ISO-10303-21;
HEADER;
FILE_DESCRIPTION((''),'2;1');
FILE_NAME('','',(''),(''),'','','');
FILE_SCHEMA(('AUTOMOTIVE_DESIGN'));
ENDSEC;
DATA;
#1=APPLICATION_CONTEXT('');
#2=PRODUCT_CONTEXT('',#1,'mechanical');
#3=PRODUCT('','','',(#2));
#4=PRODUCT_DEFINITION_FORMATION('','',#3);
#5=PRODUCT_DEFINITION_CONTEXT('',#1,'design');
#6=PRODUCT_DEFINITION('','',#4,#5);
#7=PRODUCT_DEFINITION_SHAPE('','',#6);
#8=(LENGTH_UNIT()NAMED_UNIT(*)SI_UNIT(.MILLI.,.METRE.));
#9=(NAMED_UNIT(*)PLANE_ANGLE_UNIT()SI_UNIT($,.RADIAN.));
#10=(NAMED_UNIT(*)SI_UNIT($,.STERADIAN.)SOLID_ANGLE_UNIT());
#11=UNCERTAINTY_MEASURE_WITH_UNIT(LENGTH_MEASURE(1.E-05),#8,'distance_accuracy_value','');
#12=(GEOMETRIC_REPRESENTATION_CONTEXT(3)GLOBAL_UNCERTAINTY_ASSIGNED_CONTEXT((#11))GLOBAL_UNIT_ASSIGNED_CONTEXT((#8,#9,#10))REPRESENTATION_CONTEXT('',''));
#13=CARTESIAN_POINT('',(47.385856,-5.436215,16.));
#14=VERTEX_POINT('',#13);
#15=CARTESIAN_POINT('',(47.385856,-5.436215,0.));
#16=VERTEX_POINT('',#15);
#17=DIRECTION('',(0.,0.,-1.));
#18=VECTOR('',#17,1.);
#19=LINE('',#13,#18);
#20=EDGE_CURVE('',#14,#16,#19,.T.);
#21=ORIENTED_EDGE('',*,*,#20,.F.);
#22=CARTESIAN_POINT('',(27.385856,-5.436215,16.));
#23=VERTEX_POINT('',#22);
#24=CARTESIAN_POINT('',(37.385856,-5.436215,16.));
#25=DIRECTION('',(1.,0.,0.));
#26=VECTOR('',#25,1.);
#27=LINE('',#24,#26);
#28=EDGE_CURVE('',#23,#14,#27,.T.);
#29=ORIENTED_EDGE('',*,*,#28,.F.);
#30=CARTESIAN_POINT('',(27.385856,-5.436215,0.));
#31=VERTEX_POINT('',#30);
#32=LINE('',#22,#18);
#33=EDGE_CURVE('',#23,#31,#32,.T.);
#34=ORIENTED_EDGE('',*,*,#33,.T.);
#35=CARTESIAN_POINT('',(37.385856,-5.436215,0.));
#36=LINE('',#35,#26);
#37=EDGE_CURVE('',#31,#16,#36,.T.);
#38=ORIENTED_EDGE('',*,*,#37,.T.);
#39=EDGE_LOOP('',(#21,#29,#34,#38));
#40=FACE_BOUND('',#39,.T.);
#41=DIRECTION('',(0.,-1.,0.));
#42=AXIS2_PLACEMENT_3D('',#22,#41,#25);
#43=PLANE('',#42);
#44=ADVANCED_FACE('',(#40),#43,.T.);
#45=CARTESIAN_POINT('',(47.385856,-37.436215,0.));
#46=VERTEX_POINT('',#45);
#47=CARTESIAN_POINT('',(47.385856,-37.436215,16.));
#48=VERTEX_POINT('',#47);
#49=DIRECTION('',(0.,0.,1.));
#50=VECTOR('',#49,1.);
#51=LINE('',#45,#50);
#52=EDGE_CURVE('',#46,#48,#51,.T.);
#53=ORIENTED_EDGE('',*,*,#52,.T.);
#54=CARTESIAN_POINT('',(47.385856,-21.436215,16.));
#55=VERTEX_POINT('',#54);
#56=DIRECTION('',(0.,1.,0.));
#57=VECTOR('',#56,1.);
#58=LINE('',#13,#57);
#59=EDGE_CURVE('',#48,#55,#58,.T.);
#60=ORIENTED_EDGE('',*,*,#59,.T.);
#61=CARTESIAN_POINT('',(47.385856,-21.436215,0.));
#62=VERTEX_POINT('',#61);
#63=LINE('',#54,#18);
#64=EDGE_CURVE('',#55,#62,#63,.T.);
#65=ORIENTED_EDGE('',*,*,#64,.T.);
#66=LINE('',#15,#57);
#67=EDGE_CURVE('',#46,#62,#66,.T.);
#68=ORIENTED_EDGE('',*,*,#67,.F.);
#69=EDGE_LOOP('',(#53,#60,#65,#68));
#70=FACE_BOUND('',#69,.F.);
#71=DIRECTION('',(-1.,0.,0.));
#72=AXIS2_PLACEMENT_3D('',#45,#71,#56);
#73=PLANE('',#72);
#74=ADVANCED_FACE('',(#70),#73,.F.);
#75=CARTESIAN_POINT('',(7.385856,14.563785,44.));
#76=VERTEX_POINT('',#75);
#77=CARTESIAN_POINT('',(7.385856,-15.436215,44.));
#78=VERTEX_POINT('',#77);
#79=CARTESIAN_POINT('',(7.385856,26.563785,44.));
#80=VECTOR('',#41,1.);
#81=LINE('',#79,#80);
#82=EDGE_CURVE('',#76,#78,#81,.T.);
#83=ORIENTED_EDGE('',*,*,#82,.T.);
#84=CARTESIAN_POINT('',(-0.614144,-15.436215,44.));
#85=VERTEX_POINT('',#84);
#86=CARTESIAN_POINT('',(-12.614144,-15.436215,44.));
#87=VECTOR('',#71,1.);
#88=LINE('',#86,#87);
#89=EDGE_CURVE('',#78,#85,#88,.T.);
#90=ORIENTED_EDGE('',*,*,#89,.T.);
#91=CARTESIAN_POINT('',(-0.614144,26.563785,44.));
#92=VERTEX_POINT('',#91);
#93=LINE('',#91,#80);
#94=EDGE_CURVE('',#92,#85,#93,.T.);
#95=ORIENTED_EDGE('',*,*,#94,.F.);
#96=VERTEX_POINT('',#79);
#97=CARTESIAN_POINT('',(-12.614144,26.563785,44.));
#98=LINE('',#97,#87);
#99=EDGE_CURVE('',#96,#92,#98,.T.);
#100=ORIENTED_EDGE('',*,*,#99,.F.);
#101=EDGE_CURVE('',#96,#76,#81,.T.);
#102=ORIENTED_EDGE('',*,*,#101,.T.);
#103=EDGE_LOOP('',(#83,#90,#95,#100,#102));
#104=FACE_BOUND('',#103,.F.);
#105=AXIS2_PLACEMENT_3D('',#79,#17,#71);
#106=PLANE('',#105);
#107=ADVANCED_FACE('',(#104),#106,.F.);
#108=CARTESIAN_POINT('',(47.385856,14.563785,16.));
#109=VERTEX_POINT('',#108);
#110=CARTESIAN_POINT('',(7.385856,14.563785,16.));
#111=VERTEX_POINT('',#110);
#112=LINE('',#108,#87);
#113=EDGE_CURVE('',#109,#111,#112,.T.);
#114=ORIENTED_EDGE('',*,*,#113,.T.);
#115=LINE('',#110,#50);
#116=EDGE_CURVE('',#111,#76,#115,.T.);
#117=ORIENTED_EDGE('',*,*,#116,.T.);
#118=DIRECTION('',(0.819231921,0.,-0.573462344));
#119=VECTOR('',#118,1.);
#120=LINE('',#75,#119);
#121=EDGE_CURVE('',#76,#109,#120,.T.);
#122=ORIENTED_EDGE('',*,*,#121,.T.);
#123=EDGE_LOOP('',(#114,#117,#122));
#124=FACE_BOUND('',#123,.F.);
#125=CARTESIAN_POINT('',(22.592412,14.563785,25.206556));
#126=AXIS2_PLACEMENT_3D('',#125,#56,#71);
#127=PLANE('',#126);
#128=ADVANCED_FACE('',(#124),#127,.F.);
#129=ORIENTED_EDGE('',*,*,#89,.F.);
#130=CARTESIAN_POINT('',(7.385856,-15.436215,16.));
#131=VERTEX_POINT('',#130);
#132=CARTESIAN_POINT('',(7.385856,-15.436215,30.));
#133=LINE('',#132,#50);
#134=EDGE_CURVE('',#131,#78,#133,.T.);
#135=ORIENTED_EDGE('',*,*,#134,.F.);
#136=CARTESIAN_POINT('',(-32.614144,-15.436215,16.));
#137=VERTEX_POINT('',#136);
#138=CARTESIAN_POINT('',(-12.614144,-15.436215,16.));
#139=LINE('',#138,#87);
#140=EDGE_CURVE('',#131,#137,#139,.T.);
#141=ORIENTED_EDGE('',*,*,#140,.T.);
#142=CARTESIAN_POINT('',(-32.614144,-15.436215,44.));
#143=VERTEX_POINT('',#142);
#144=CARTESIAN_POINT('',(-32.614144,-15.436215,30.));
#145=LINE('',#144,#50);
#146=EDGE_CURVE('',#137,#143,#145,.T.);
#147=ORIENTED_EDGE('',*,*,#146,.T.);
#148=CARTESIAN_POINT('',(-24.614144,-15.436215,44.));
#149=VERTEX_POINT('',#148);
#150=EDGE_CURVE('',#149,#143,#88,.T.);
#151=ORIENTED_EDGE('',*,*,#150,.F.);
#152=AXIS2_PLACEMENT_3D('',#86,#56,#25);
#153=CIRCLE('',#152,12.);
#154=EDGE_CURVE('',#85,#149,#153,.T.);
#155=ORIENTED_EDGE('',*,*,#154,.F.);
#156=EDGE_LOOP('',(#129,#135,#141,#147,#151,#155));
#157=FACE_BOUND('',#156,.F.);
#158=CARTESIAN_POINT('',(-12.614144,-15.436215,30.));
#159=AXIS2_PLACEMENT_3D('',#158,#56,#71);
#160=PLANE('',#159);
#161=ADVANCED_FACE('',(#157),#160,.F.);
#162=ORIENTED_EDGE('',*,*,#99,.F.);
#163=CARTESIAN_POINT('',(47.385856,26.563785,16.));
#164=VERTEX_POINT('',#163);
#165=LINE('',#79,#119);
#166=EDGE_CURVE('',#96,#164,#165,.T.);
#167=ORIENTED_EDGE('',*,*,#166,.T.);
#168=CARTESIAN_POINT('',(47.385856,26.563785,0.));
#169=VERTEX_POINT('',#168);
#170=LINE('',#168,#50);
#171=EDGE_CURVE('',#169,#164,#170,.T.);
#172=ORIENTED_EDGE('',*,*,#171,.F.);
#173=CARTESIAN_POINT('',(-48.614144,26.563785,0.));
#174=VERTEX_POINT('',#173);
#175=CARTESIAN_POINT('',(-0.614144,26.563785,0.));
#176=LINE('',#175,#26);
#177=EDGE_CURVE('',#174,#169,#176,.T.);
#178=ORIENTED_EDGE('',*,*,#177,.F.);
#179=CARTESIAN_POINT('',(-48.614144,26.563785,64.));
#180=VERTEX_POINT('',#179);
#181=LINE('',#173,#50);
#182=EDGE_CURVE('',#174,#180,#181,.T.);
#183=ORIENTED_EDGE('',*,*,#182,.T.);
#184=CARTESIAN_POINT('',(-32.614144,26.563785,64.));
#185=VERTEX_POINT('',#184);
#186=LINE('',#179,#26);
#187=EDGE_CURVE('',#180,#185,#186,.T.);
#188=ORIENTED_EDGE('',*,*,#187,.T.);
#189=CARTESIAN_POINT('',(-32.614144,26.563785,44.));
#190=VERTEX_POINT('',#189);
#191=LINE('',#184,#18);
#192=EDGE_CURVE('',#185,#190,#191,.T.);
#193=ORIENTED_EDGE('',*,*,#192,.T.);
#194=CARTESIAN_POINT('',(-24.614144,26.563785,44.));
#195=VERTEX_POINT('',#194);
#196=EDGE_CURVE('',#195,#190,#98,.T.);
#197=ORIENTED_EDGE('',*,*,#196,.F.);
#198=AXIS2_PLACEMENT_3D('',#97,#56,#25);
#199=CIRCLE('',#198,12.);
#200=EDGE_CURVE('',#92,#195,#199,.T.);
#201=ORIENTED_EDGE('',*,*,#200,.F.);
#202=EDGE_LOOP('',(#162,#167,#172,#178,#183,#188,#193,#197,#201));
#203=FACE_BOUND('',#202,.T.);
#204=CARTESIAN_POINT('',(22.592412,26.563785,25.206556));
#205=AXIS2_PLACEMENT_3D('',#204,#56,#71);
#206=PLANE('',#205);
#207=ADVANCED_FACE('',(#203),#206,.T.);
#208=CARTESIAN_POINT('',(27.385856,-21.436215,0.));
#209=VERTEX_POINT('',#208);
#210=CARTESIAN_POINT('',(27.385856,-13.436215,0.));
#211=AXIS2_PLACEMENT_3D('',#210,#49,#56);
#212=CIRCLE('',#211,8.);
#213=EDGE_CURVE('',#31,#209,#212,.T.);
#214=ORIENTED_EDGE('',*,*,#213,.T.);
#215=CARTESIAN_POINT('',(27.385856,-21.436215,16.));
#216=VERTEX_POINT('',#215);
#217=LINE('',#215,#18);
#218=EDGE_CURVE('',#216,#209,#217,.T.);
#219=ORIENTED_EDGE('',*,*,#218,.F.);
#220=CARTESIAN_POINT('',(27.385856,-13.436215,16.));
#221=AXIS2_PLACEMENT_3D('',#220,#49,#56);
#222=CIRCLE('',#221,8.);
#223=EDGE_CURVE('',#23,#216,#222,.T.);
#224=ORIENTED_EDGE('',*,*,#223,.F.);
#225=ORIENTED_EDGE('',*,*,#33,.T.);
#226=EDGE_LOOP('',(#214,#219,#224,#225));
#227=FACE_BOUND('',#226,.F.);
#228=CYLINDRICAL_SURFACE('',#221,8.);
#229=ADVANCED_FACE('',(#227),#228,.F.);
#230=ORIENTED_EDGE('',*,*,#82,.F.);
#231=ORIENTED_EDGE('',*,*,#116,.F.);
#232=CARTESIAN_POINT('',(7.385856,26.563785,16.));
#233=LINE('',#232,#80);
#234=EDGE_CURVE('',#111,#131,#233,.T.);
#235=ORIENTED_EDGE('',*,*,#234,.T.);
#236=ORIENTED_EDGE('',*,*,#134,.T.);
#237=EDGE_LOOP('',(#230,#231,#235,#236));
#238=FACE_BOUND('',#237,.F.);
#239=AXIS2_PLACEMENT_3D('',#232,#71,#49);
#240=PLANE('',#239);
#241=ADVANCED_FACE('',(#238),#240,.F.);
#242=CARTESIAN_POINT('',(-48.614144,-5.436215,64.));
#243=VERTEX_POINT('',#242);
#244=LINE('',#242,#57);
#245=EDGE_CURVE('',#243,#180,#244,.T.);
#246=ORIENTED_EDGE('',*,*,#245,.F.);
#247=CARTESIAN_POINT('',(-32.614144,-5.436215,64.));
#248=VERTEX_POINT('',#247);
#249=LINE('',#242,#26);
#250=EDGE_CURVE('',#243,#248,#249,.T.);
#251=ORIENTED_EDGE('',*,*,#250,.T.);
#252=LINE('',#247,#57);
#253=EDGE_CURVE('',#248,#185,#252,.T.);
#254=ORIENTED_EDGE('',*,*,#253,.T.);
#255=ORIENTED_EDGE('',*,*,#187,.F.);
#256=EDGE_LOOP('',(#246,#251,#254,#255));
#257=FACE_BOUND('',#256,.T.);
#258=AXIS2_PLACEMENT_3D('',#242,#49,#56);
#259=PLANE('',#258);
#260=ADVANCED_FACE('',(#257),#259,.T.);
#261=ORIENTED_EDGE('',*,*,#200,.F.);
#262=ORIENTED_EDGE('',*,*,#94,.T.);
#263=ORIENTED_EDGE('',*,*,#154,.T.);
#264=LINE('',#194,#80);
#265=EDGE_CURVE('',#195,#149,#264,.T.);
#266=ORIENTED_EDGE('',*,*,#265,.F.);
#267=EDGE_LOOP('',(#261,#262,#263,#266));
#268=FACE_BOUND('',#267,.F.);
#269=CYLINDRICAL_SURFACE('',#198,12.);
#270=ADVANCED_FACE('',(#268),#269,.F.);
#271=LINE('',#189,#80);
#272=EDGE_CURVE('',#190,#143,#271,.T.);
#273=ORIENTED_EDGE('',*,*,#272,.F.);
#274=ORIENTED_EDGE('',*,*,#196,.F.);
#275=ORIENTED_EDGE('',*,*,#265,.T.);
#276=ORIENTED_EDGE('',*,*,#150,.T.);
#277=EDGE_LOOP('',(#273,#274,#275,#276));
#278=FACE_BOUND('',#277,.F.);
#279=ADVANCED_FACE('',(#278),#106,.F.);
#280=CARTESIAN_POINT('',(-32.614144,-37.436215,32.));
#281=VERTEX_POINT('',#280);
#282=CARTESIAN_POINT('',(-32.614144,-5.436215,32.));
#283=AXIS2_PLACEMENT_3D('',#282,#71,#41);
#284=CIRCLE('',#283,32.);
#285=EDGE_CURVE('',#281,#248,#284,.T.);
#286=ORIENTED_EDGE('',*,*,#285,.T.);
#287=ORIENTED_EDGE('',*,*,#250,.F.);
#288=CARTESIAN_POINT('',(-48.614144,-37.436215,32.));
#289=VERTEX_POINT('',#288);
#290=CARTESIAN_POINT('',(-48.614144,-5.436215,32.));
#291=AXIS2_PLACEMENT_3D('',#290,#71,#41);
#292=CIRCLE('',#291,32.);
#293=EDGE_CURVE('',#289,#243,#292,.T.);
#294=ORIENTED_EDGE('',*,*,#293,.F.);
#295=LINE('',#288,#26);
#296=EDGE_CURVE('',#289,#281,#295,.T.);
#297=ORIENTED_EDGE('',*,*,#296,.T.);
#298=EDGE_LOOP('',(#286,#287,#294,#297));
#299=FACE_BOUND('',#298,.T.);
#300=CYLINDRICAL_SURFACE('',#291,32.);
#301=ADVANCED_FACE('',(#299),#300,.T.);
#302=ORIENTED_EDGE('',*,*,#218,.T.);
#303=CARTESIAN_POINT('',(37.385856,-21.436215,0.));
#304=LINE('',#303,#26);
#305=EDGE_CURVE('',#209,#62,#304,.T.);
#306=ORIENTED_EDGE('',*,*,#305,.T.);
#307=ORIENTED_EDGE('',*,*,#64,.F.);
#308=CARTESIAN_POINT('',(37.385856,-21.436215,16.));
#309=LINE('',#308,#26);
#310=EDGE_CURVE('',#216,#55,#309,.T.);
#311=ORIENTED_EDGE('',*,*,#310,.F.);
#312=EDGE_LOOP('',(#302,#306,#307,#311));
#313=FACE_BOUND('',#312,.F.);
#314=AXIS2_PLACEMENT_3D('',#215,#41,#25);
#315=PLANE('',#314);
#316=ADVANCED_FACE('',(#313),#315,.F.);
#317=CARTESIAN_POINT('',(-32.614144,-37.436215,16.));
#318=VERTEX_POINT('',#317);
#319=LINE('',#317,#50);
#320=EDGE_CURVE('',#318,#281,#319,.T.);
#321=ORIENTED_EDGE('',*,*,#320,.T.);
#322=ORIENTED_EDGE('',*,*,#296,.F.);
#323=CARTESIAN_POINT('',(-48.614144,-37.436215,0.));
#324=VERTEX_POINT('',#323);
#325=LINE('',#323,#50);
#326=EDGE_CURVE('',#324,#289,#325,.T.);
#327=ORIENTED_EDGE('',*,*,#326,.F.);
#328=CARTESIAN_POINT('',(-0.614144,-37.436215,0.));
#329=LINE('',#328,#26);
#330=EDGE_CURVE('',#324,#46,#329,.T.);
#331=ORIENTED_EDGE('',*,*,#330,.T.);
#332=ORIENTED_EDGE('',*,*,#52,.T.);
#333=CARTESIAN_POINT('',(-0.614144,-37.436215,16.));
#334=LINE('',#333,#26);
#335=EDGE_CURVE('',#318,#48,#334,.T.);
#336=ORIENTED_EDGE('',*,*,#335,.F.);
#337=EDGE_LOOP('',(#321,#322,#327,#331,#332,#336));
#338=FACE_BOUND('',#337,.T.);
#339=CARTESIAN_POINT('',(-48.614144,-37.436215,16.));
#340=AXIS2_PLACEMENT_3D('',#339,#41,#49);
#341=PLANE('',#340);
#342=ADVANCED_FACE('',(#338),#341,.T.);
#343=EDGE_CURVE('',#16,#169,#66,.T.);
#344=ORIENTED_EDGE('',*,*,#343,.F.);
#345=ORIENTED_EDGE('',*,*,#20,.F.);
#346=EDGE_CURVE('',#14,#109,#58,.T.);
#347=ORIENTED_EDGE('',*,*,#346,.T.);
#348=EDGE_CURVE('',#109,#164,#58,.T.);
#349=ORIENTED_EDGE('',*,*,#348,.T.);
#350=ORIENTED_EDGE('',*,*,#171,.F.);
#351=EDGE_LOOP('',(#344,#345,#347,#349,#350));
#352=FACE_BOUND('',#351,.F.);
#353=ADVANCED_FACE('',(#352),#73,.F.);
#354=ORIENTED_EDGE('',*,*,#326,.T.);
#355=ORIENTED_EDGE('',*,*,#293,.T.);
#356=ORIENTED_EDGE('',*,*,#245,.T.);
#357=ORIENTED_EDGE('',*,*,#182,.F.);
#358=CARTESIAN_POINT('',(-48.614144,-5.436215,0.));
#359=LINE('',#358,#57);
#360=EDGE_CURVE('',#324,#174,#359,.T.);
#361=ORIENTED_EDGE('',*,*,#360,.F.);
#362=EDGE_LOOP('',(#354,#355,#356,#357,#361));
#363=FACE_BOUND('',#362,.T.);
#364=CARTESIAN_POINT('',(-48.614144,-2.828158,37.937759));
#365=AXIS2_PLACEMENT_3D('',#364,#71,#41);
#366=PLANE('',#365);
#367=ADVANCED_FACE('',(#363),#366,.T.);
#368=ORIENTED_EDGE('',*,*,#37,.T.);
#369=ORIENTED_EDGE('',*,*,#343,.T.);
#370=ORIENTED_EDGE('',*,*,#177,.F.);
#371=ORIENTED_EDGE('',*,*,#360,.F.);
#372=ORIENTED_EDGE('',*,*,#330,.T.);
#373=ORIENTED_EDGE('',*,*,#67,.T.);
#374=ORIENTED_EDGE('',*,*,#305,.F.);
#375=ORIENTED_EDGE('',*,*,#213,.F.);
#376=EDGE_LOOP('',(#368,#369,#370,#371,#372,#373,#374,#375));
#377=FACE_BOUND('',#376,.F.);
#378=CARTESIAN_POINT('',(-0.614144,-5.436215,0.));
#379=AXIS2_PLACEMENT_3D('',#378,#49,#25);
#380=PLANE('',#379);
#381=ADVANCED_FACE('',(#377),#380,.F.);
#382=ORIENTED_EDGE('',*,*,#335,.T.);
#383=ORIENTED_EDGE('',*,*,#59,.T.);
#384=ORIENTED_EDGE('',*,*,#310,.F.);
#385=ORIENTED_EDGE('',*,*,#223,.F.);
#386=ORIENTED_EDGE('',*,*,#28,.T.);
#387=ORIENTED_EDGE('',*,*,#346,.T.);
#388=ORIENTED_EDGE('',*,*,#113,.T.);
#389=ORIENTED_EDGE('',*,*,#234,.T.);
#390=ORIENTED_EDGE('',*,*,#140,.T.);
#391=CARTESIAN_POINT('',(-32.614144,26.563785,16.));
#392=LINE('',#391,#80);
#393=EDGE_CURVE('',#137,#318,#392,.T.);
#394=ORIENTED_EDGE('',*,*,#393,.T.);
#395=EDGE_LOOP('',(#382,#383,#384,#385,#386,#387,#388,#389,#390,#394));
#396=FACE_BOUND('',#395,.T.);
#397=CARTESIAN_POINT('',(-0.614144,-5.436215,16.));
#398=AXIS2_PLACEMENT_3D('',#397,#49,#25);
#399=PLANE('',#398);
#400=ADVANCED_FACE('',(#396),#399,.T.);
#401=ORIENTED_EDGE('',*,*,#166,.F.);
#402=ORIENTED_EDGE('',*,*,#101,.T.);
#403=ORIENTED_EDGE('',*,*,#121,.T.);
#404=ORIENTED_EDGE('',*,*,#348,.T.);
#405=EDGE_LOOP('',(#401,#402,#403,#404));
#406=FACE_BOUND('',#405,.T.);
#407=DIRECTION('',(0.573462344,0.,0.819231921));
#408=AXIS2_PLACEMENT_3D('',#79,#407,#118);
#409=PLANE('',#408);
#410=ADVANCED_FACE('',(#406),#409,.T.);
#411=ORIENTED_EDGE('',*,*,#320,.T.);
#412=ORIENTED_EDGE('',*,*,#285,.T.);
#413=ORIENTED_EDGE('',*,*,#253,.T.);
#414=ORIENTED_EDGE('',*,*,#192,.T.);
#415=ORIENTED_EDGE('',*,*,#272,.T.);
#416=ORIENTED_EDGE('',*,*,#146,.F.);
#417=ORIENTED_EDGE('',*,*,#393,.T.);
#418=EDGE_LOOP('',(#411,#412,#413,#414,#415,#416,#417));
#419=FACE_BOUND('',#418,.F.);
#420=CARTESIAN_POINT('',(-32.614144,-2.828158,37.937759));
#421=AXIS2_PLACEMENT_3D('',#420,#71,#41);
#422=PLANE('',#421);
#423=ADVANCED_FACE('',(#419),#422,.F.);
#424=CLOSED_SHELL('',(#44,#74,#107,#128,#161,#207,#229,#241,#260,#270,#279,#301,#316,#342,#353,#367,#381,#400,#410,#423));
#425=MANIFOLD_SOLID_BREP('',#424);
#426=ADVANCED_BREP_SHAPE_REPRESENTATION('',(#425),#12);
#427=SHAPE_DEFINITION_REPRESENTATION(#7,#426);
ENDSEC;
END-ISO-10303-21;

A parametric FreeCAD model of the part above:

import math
import FreeCAD as App
import Part
import Sketcher


def add_polygon(sketch, points):
    """Adds a closed chain of lines whose ends are joined by coincident constraints."""
    first, n = sketch.GeometryCount, len(points)
    for a, b in zip(points, points[1:] + points[:1]):
        sketch.addGeometry(Part.LineSegment(App.Vector(*a, 0), App.Vector(*b, 0)), False)
    for i in range(n):
        sketch.addConstraint(Sketcher.Constraint("Coincident", first + i, 2, first + (i + 1) % n, 1))

doc = App.newDocument("Part")
body = doc.addObject("PartDesign::Body", "Body")

sketch1 = body.newObject("Sketcher::SketchObject", "Sketch")
sketch1.AttachmentSupport = (doc.getObject("XY_Plane"), [""])
sketch1.MapMode = "FlatFace"
add_polygon(sketch1, [(-49, 27), (-49, -37), (47, -37), (47, 27)])
sketch1.addConstraint([
    Sketcher.Constraint("Vertical", 0),
    Sketcher.Constraint("Horizontal", 1),
    Sketcher.Constraint("Vertical", 2),
    Sketcher.Constraint("Horizontal", 3),
    Sketcher.Constraint("DistanceX", 1, 1, 1, 2, 96.0),
    Sketcher.Constraint("DistanceY", 0, 2, 0, 1, 64.0),
    Sketcher.Constraint("DistanceX", 0, 2, -1, 1, 48.614144),
    Sketcher.Constraint("DistanceY", 0, 2, -1, 1, 37.436215),
])
pad1 = body.newObject("PartDesign::Pad", "Pad")
pad1.Profile = sketch1
pad1.Length = 16

sketch2 = body.newObject("Sketcher::SketchObject", "Sketch001")
sketch2.AttachmentSupport = (doc.getObject("YZ_Plane"), [""])
sketch2.MapMode = "FlatFace"
sketch2.AttachmentOffset = App.Placement(App.Vector(0, 0, -48.614144), App.Rotation())
sketch2.addGeometry([
    Part.LineSegment(App.Vector(27, 64, 0), App.Vector(27, 16, 0)),
    Part.LineSegment(App.Vector(27, 16, 0), App.Vector(-37, 16, 0)),
    Part.LineSegment(App.Vector(-37, 16, 0), App.Vector(-37, 32, 0)),
    Part.ArcOfCircle(Part.Circle(App.Vector(-5, 32, 0), App.Vector(0, 0, 1), 32), math.radians(90), math.radians(180)),
    Part.LineSegment(App.Vector(-5, 64, 0), App.Vector(27, 64, 0)),
], False)
sketch2.addConstraint([
    Sketcher.Constraint("Coincident", 0, 2, 1, 1),
    Sketcher.Constraint("Coincident", 1, 2, 2, 1),
    Sketcher.Constraint("Tangent", 2, 2, 3, 2),
    Sketcher.Constraint("Tangent", 3, 1, 4, 1),
    Sketcher.Constraint("Coincident", 4, 2, 0, 1),
    Sketcher.Constraint("Vertical", 0),
    Sketcher.Constraint("Horizontal", 1),
    Sketcher.Constraint("Vertical", 2),
    Sketcher.Constraint("Horizontal", 4),
    Sketcher.Constraint("Radius", 3, 32.0),
    Sketcher.Constraint("DistanceX", 1, 2, 1, 1, 64.0),
    Sketcher.Constraint("DistanceY", 0, 2, 0, 1, 48.0),
    Sketcher.Constraint("DistanceY", -1, 1, 3, 3, 32.0),
    Sketcher.Constraint("DistanceX", 3, 3, -1, 1, 5.436215),
])
pad2 = body.newObject("PartDesign::Pad", "Pad001")
pad2.Profile = sketch2
pad2.Length = 16

sketch3 = body.newObject("Sketcher::SketchObject", "Sketch002")
sketch3.AttachmentSupport = (doc.getObject("XZ_Plane"), [""])
sketch3.MapMode = "FlatFace"
sketch3.AttachmentOffset = App.Placement(App.Vector(0, 0, -26.563785), App.Rotation())
add_polygon(sketch3, [(7, 44), (7, 16), (-33, 16), (-33, 44)])
sketch3.addConstraint([
    Sketcher.Constraint("Vertical", 0),
    Sketcher.Constraint("Horizontal", 1),
    Sketcher.Constraint("Vertical", 2),
    Sketcher.Constraint("Horizontal", 3),
    Sketcher.Constraint("DistanceX", 1, 2, 1, 1, 40.0),
    Sketcher.Constraint("DistanceY", 0, 2, 0, 1, 28.0),
    Sketcher.Constraint("DistanceY", -1, 1, 0, 2, 16.0),
    Sketcher.Constraint("DistanceX", -1, 1, 0, 2, 7.385856),
])
pad3 = body.newObject("PartDesign::Pad", "Pad002")
pad3.Profile = sketch3
pad3.Length = 42

sketch4 = body.newObject("Sketcher::SketchObject", "Sketch003")
sketch4.AttachmentSupport = (doc.getObject("XZ_Plane"), [""])
sketch4.MapMode = "FlatFace"
sketch4.AttachmentOffset = App.Placement(App.Vector(0, 0, -26.563785), App.Rotation())
sketch4.addGeometry([
    Part.LineSegment(App.Vector(-25, 44, 0), App.Vector(-1, 44, 0)),
    Part.ArcOfCircle(Part.Circle(App.Vector(-13, 44, 0), App.Vector(0, 0, 1), 12), math.radians(180), math.radians(360)),
], False)
sketch4.addConstraint([
    Sketcher.Constraint("Coincident", 0, 1, 1, 1),
    Sketcher.Constraint("Coincident", 1, 2, 0, 2),
    Sketcher.Constraint("Horizontal", 0),
    Sketcher.Constraint("Horizontal", 1, 3, 0, 1),
    Sketcher.Constraint("Radius", 1, 12.0),
    Sketcher.Constraint("DistanceY", -1, 1, 1, 3, 44.0),
    Sketcher.Constraint("DistanceX", 1, 3, -1, 1, 12.614144),
])
pocket1 = body.newObject("PartDesign::Pocket", "Pocket")
pocket1.Profile = sketch4
pocket1.Length = 42
pocket1.Reversed = True

sketch5 = body.newObject("Sketcher::SketchObject", "Sketch004")
sketch5.AttachmentSupport = (doc.getObject("XY_Plane"), [""])
sketch5.MapMode = "FlatFace"
sketch5.AttachmentOffset = App.Placement(App.Vector(0, 0, 16), App.Rotation())
sketch5.addGeometry([
    Part.ArcOfCircle(Part.Circle(App.Vector(27, -13, 0), App.Vector(0, 0, 1), 8), math.radians(90), math.radians(270)),
    Part.LineSegment(App.Vector(27, -21, 0), App.Vector(47, -21, 0)),
    Part.LineSegment(App.Vector(47, -21, 0), App.Vector(47, -5, 0)),
    Part.LineSegment(App.Vector(47, -5, 0), App.Vector(27, -5, 0)),
], False)
sketch5.addConstraint([
    Sketcher.Constraint("Tangent", 0, 2, 1, 1),
    Sketcher.Constraint("Coincident", 1, 2, 2, 1),
    Sketcher.Constraint("Coincident", 2, 2, 3, 1),
    Sketcher.Constraint("Tangent", 3, 2, 0, 1),
    Sketcher.Constraint("Horizontal", 1),
    Sketcher.Constraint("Vertical", 2),
    Sketcher.Constraint("Horizontal", 3),
    Sketcher.Constraint("Radius", 0, 8.0),
    Sketcher.Constraint("DistanceX", 1, 1, 1, 2, 20.0),
    Sketcher.Constraint("DistanceX", -1, 1, 0, 3, 27.385856),
    Sketcher.Constraint("DistanceY", 0, 3, -1, 1, 13.436215),
])
pocket2 = body.newObject("PartDesign::Pocket", "Pocket001")
pocket2.Profile = sketch5
pocket2.Length = 16

sketch6 = body.newObject("Sketcher::SketchObject", "Sketch005")
sketch6.AttachmentSupport = (doc.getObject("XZ_Plane"), [""])
sketch6.MapMode = "FlatFace"
sketch6.AttachmentOffset = App.Placement(App.Vector(0, 0, -26.563785), App.Rotation())
add_polygon(sketch6, [(7, 44), (47, 16), (7, 16)])
sketch6.addConstraint([
    Sketcher.Constraint("Horizontal", 1),
    Sketcher.Constraint("Vertical", 2),
    Sketcher.Constraint("DistanceX", 1, 2, 1, 1, 40.0),
    Sketcher.Constraint("DistanceY", 2, 1, 2, 2, 28.0),
    Sketcher.Constraint("DistanceY", -1, 1, 0, 2, 16.0),
    Sketcher.Constraint("DistanceX", -1, 1, 0, 2, 47.385856),
])
pad4 = body.newObject("PartDesign::Pad", "Pad003")
pad4.Profile = sketch6
pad4.Length = 12

doc.recompute()
